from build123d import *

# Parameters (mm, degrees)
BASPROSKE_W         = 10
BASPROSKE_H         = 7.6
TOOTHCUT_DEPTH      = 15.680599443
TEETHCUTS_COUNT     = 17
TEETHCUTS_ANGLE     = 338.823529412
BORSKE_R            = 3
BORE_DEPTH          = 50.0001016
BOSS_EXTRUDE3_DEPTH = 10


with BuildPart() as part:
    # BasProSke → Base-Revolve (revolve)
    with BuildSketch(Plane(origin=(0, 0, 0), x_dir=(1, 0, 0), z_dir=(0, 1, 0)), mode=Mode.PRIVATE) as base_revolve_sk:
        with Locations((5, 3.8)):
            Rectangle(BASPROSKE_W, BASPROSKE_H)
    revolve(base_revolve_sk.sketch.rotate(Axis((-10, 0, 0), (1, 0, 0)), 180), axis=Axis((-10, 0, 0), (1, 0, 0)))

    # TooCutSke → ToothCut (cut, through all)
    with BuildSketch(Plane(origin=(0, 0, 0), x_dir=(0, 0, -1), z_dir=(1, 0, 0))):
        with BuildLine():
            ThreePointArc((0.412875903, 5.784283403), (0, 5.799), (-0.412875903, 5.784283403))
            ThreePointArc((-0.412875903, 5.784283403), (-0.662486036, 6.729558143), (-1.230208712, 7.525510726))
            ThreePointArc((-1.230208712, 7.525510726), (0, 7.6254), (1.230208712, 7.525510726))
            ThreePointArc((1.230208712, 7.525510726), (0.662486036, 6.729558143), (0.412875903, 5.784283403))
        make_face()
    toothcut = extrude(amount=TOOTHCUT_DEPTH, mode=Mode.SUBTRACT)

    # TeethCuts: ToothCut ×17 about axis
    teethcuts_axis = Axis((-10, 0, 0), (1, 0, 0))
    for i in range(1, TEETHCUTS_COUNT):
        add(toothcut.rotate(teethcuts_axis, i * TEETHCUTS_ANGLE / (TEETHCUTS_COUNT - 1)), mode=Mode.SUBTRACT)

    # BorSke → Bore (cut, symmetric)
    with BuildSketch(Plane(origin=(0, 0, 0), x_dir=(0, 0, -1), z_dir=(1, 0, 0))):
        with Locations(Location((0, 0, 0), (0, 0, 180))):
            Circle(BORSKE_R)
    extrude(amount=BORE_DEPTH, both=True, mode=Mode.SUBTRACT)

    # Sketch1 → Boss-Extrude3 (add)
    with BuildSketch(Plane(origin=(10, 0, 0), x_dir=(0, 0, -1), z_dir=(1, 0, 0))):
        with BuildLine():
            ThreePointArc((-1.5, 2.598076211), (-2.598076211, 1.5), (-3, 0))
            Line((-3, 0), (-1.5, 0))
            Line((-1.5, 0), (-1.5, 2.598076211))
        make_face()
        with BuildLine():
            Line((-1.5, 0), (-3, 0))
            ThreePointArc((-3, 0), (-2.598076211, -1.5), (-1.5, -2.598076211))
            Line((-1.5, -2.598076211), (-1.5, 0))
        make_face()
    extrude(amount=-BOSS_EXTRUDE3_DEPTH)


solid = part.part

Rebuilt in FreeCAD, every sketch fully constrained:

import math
import FreeCAD as App
import Part
import Sketcher

V = App.Vector


def add_polygon(sketch, points):
    """Adds a closed chain of lines whose ends are joined by coincident constraints."""
    first, n = sketch.GeometryCount, len(points)
    for a, b in zip(points, points[1:] + points[:1]):
        sketch.addGeometry(Part.LineSegment(App.Vector(*a, 0), App.Vector(*b, 0)), False)
    for i in range(n):
        sketch.addConstraint(Sketcher.Constraint("Coincident", first + i, 2, first + (i + 1) % n, 1))

doc = App.newDocument("Part")
body = doc.addObject("PartDesign::Body", "Body")

# Sketch on XZ plane
sketch1 = doc.addObject("Sketcher::SketchObject", "Sketch")
body.addObject(sketch1)
sketch1.AttachmentSupport = (doc.XZ_Plane, [""])
sketch1.MapMode = "FlatFace"
add_polygon(sketch1, [(0, -8), (0, 0), (10, 0), (10, -8)])  # lines 0-3
sketch1.addConstraint([
    Sketcher.Constraint("Vertical", 0),
    Sketcher.Constraint("Horizontal", 1),
    Sketcher.Constraint("Vertical", 2),
    Sketcher.Constraint("Horizontal", 3),
    Sketcher.Constraint("Coincident", 0, 2, -1, 1),
    Sketcher.Constraint("DistanceX", 1, 1, 1, 2, 10.0),
    Sketcher.Constraint("DistanceY", 0, 1, 0, 2, 7.6),
])
revolution = doc.addObject("PartDesign::Revolution", "Revolution")
body.addObject(revolution)
revolution.Profile = sketch1
revolution.ReferenceAxis = (sketch1, ["H_Axis"])
revolution.Angle = 360

# Sketch on YZ plane
sketch2 = doc.addObject("Sketcher::SketchObject", "Sketch001")
body.addObject(sketch2)
sketch2.AttachmentSupport = (doc.YZ_Plane, [""])
sketch2.MapMode = "FlatFace"
sketch2.addGeometry([
    Part.ArcOfCircle(Part.Circle(V(0, 0, 0), V(0, 0, 1), 5.8), math.radians(-4.08), math.radians(4.08)),
    Part.ArcOfCircle(Part.Circle(V(5.6, -3.1, 0), V(0, 0, 1), 2.7), math.radians(44), math.radians(86)),
    Part.ArcOfCircle(Part.Circle(V(0, 0, 0), V(0, 0, 1), 7.6), math.radians(-9.28), math.radians(9.28)),
    Part.ArcOfCircle(Part.Circle(V(5.6, 3.1, 0), V(0, 0, 1), 2.7), math.radians(-86), math.radians(-44)),
], False)
sketch2.addConstraint([
    Sketcher.Constraint("Coincident", 0, 1, 1, 2),
    Sketcher.Constraint("Coincident", 1, 1, 2, 1),
    Sketcher.Constraint("Coincident", 2, 2, 3, 2),
    Sketcher.Constraint("Coincident", 3, 1, 0, 2),
    Sketcher.Constraint("Coincident", 0, 3, -1, 1),
    Sketcher.Constraint("Coincident", 2, 3, -1, 1),
    Sketcher.Constraint("Equal", 1, 3),
    Sketcher.Constraint("Symmetric", 1, 3, 3, 3, -1),
    Sketcher.Constraint("Radius", 1, 2.72),
    Sketcher.Constraint("Radius", 0, 5.799),
    Sketcher.Constraint("Radius", 2, 7.6254),
    Sketcher.Constraint("DistanceX", 1, 3, 0, 1, 0.210498),
    Sketcher.Constraint("DistanceY", 1, 3, -1, 1, 3.124719),
])
pocket1 = doc.addObject("PartDesign::Pocket", "Pocket")
body.addObject(pocket1)
pocket1.Profile = sketch2
pocket1.Type = "ThroughAll"
pocket1.Reversed = True
doc.recompute()

polarpattern = doc.addObject("PartDesign::PolarPattern", "PolarPattern")
body.addObject(polarpattern)
polarpattern.Originals = [pocket1]
polarpattern.Axis = (doc.X_Axis, [""])
polarpattern.Angle = 360
polarpattern.Occurrences = 17
body.Tip = polarpattern

# Sketch on YZ plane
sketch3 = doc.addObject("Sketcher::SketchObject", "Sketch002")
body.addObject(sketch3)
sketch3.AttachmentSupport = (doc.YZ_Plane, [""])
sketch3.MapMode = "FlatFace"
sketch3.addGeometry(Part.Circle(V(0, 0, 0), V(0, 0, 1), 3), False)
sketch3.addConstraint([
    Sketcher.Constraint("Coincident", 0, 3, -1, 1),
    Sketcher.Constraint("Diameter", 0, 6.0),
])
pocket2 = doc.addObject("PartDesign::Pocket", "Pocket001")
body.addObject(pocket2)
pocket2.Profile = sketch3
pocket2.Length = 100.000203
pocket2.Midplane = True

# Sketch on YZ plane
sketch4 = doc.addObject("Sketcher::SketchObject", "Sketch003")
body.addObject(sketch4)
sketch4.AttachmentSupport = (doc.YZ_Plane, [""])
sketch4.MapMode = "FlatFace"
sketch4.AttachmentOffset = App.Placement(V(0, 0, 10), App.Rotation())
sketch4.addGeometry([
    Part.ArcOfCircle(Part.Circle(V(0, 0, 0), V(0, 0, 1), 3), math.radians(30), math.radians(90)),
    Part.ArcOfCircle(Part.Circle(V(0, 0, 0), V(0, 0, 1), 3), math.radians(90), math.radians(150)),
    Part.LineSegment(V(-2.6, 1.5, 0), V(2.6, 1.5, 0)),
], False)
sketch4.addConstraint([
    Sketcher.Constraint("Tangent", 0, 2, 1, 1),
    Sketcher.Constraint("Coincident", 1, 2, 2, 1),
    Sketcher.Constraint("Coincident", 2, 2, 0, 1),
    Sketcher.Constraint("Horizontal", 2),
    Sketcher.Constraint("Coincident", 0, 3, -1, 1),
    Sketcher.Constraint("Equal", 0, 1),
    Sketcher.Constraint("PointOnObject", 0, 2, -2),
    Sketcher.Constraint("Radius", 0, 3.0),
    Sketcher.Constraint("DistanceY", -1, 1, 1, 2, 1.5),
])
pad1 = doc.addObject("PartDesign::Pad", "Pad")
body.addObject(pad1)
pad1.Profile = sketch4
pad1.Length = 10
pad1.Reversed = True

doc.recompute()
